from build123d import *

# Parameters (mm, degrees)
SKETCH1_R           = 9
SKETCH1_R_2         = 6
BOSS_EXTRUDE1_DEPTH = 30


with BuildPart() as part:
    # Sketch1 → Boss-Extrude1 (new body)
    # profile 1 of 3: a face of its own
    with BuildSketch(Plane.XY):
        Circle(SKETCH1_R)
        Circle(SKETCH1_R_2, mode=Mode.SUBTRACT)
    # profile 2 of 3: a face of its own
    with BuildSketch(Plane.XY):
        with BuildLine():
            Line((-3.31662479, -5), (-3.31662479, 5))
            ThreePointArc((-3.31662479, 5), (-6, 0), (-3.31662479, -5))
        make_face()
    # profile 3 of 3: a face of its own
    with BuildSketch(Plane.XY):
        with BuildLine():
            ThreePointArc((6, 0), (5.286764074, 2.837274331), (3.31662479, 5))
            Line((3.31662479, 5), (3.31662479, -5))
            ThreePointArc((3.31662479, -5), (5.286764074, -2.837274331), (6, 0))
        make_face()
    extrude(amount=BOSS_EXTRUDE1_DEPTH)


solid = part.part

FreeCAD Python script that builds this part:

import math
import FreeCAD as App
import Part
import Sketcher

V = App.Vector

doc = App.newDocument("Part")
body = doc.addObject("PartDesign::Body", "Body")

# Sketch on XY plane
sketch1 = doc.addObject("Sketcher::SketchObject", "Sketch")
body.addObject(sketch1)
sketch1.AttachmentSupport = (doc.XY_Plane, [""])
sketch1.MapMode = "FlatFace"
sketch1.addGeometry([
    Part.Circle(V(0, 0, 0), V(0, 0, 1), 9),  # 0
    Part.ArcOfCircle(Part.Circle(V(0, 0, 0), V(0, 0, 1), 6), math.radians(56), math.radians(124)),  # 1
    Part.LineSegment(V(3, 5, 0), V(3, -5, 0)),  # 2
    Part.ArcOfCircle(Part.Circle(V(0, 0, 0), V(0, 0, 1), 6), math.radians(-124), math.radians(-56)),  # 3
    Part.LineSegment(V(-3, -5, 0), V(-3, 5, 0)),  # 4
], False)
sketch1.addConstraint([
    Sketcher.Constraint("Coincident", 1, 1, 2, 1),
    Sketcher.Constraint("Coincident", 2, 2, 3, 2),
    Sketcher.Constraint("Coincident", 3, 1, 4, 1),
    Sketcher.Constraint("Coincident", 4, 2, 1, 2),
    Sketcher.Constraint("Vertical", 2),
    Sketcher.Constraint("Vertical", 4),
    Sketcher.Constraint("Coincident", 0, 3, -1, 1),
    Sketcher.Constraint("Coincident", 1, 3, -1, 1),
    Sketcher.Constraint("Coincident", 3, 3, -1, 1),
    Sketcher.Constraint("Equal", 1, 3),
    Sketcher.Constraint("Horizontal", 2, 2, 3, 1),
    Sketcher.Constraint("Diameter", 0, 18.0),
    Sketcher.Constraint("Radius", 1, 6.0),
    Sketcher.Constraint("DistanceY", 2, 2, 2, 1, 10.0),
])
pad1 = doc.addObject("PartDesign::Pad", "Pad")
body.addObject(pad1)
pad1.Profile = sketch1
pad1.Length = 30

doc.recompute()
